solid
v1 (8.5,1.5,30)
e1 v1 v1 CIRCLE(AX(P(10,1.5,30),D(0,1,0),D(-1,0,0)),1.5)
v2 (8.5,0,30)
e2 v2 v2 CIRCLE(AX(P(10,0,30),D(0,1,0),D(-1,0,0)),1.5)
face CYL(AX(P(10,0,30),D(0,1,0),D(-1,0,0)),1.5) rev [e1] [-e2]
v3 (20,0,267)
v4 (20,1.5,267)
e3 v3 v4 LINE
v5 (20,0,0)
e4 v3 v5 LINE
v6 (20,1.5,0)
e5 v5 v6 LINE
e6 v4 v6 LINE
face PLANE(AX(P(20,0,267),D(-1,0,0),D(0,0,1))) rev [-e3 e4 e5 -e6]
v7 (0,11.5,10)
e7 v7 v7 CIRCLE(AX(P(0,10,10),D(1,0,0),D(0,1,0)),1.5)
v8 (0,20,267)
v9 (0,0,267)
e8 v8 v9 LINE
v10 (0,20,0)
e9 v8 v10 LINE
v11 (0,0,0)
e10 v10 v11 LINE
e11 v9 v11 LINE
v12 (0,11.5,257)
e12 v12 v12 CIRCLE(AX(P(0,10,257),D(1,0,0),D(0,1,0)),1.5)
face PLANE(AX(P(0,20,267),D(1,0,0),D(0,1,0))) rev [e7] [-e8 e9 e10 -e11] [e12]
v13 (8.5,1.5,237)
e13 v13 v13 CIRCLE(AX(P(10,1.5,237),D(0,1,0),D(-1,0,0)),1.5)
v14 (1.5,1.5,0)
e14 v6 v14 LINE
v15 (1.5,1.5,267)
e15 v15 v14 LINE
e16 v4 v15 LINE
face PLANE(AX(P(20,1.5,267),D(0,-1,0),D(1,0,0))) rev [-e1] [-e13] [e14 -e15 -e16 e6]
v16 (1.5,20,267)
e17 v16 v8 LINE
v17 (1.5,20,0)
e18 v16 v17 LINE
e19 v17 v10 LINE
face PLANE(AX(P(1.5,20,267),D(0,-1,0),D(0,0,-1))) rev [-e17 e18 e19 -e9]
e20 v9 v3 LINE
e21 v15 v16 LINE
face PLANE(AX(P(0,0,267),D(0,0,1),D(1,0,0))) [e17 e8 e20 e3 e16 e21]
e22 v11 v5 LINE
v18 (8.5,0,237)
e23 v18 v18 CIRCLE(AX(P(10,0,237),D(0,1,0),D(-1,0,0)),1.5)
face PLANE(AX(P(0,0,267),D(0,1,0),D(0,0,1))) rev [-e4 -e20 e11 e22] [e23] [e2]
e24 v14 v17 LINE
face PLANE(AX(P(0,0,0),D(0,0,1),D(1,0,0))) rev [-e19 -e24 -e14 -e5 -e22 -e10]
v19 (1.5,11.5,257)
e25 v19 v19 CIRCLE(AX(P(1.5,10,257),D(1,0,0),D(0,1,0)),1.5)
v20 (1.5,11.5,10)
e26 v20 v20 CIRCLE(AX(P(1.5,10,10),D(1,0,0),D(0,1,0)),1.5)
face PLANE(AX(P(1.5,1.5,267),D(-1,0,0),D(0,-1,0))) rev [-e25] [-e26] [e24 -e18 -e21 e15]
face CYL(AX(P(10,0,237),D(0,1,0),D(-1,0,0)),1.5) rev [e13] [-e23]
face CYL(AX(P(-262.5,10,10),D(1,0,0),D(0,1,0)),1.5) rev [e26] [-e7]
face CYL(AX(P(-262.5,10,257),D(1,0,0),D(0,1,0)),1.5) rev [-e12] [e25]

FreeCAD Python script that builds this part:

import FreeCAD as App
import Part
import Sketcher
from FreeCAD import Vector
Q = App.Units.Quantity

doc = App.newDocument("Part")
body = doc.addObject("PartDesign::Body", "Body")

sketch1 = body.newObject("Sketcher::SketchObject", "Sketch")
sketch1.AttachmentSupport = (doc.getObject("XY_Plane"), [""])
sketch1.MapMode = "FlatFace"
sketch1.addGeometry(Part.LineSegment(Vector(0, 0, 0), Vector(20, 0, 0)), False)
sketch1.addGeometry(Part.LineSegment(Vector(20, 0, 0), Vector(20, 1.5, 0)), False)
sketch1.addGeometry(Part.LineSegment(Vector(20, 1.5, 0), Vector(1.5, 1.5, 0)), False)
sketch1.addGeometry(Part.LineSegment(Vector(1.5, 1.5, 0), Vector(1.5, 20, 0)), False)
sketch1.addGeometry(Part.LineSegment(Vector(1.5, 20, 0), Vector(0, 20, 0)), False)
sketch1.addGeometry(Part.LineSegment(Vector(0, 20, 0), Vector(0, 0, 0)), False)
sketch1.addConstraint(Sketcher.Constraint("Coincident", 0, 2, 1, 1))
sketch1.addConstraint(Sketcher.Constraint("Coincident", 1, 2, 2, 1))
sketch1.addConstraint(Sketcher.Constraint("Coincident", 2, 2, 3, 1))
sketch1.addConstraint(Sketcher.Constraint("Coincident", 3, 2, 4, 1))
sketch1.addConstraint(Sketcher.Constraint("Coincident", 4, 2, 5, 1))
sketch1.addConstraint(Sketcher.Constraint("Coincident", 5, 2, 0, 1))
sketch1.addConstraint(Sketcher.Constraint("Horizontal", 0))
sketch1.addConstraint(Sketcher.Constraint("Vertical", 1))
sketch1.addConstraint(Sketcher.Constraint("Horizontal", 2))
sketch1.addConstraint(Sketcher.Constraint("Vertical", 3))
sketch1.addConstraint(Sketcher.Constraint("Horizontal", 4))
sketch1.addConstraint(Sketcher.Constraint("Vertical", 5))
sketch1.addConstraint(Sketcher.Constraint("Coincident", 5, 2, -1, 1))
sketch1.addConstraint(Sketcher.Constraint("Equal", 4, 1))
sketch1.addConstraint(Sketcher.Constraint("Equal", 2, 3))
sketch1.addConstraint(Sketcher.Constraint("DistanceX", 0, 1, 0, 2, Q("20 mm")))
sketch1.addConstraint(Sketcher.Constraint("DistanceX", 2, 2, 2, 1, Q("18.5 mm")))
pad1 = body.newObject("PartDesign::Pad", "Pad")
pad1.Profile = sketch1
pad1.Length = 267

sketch2 = body.newObject("Sketcher::SketchObject", "Sketch001")
sketch2.AttachmentSupport = (doc.getObject("XZ_Plane"), [""])
sketch2.MapMode = "FlatFace"
sketch2.AttachmentOffset = App.Placement(Vector(0, 0, -1.5), App.Rotation())
sketch2.addGeometry(Part.Circle(Vector(10, 30, 0), Vector(0, 0, 1), 1.5), False)
sketch2.addGeometry(Part.Circle(Vector(10, 237, 0), Vector(0, 0, 1), 1.5), False)
sketch2.addConstraint(Sketcher.Constraint("Equal", 0, 1))
sketch2.addConstraint(Sketcher.Constraint("Vertical", 0, 3, 1, 3))
sketch2.addConstraint(Sketcher.Constraint("Diameter", 0, Q("3 mm")))
sketch2.addConstraint(Sketcher.Constraint("DistanceX", -1, 1, 0, 3, Q("10 mm")))
sketch2.addConstraint(Sketcher.Constraint("DistanceY", -1, 1, 0, 3, Q("30 mm")))
sketch2.addConstraint(Sketcher.Constraint("DistanceY", -1, 1, 1, 3, Q("237 mm")))
pocket1 = body.newObject("PartDesign::Pocket", "Pocket")
pocket1.Profile = sketch2
pocket1.Type = "ThroughAll"
pocket1.Reversed = True

sketch3 = body.newObject("Sketcher::SketchObject", "Sketch002")
sketch3.AttachmentSupport = (doc.getObject("YZ_Plane"), [""])
sketch3.MapMode = "FlatFace"
sketch3.AttachmentOffset = App.Placement(Vector(0, 0, 1.5), App.Rotation())
sketch3.addGeometry(Part.Circle(Vector(10, 257, 0), Vector(0, 0, 1), 1.5), False)
sketch3.addGeometry(Part.Circle(Vector(10, 10, 0), Vector(0, 0, 1), 1.5), False)
sketch3.addConstraint(Sketcher.Constraint("Equal", 0, 1))
sketch3.addConstraint(Sketcher.Constraint("Vertical", 0, 3, 1, 3))
sketch3.addConstraint(Sketcher.Constraint("Diameter", 0, Q("3 mm")))
sketch3.addConstraint(Sketcher.Constraint("DistanceX", -1, 1, 0, 3, Q("10 mm")))
sketch3.addConstraint(Sketcher.Constraint("DistanceY", -1, 1, 0, 3, Q("257 mm")))
sketch3.addConstraint(Sketcher.Constraint("DistanceY", -1, 1, 1, 3, Q("10 mm")))
pocket2 = body.newObject("PartDesign::Pocket", "Pocket001")
pocket2.Profile = sketch3
pocket2.Length = 264

doc.recompute()
